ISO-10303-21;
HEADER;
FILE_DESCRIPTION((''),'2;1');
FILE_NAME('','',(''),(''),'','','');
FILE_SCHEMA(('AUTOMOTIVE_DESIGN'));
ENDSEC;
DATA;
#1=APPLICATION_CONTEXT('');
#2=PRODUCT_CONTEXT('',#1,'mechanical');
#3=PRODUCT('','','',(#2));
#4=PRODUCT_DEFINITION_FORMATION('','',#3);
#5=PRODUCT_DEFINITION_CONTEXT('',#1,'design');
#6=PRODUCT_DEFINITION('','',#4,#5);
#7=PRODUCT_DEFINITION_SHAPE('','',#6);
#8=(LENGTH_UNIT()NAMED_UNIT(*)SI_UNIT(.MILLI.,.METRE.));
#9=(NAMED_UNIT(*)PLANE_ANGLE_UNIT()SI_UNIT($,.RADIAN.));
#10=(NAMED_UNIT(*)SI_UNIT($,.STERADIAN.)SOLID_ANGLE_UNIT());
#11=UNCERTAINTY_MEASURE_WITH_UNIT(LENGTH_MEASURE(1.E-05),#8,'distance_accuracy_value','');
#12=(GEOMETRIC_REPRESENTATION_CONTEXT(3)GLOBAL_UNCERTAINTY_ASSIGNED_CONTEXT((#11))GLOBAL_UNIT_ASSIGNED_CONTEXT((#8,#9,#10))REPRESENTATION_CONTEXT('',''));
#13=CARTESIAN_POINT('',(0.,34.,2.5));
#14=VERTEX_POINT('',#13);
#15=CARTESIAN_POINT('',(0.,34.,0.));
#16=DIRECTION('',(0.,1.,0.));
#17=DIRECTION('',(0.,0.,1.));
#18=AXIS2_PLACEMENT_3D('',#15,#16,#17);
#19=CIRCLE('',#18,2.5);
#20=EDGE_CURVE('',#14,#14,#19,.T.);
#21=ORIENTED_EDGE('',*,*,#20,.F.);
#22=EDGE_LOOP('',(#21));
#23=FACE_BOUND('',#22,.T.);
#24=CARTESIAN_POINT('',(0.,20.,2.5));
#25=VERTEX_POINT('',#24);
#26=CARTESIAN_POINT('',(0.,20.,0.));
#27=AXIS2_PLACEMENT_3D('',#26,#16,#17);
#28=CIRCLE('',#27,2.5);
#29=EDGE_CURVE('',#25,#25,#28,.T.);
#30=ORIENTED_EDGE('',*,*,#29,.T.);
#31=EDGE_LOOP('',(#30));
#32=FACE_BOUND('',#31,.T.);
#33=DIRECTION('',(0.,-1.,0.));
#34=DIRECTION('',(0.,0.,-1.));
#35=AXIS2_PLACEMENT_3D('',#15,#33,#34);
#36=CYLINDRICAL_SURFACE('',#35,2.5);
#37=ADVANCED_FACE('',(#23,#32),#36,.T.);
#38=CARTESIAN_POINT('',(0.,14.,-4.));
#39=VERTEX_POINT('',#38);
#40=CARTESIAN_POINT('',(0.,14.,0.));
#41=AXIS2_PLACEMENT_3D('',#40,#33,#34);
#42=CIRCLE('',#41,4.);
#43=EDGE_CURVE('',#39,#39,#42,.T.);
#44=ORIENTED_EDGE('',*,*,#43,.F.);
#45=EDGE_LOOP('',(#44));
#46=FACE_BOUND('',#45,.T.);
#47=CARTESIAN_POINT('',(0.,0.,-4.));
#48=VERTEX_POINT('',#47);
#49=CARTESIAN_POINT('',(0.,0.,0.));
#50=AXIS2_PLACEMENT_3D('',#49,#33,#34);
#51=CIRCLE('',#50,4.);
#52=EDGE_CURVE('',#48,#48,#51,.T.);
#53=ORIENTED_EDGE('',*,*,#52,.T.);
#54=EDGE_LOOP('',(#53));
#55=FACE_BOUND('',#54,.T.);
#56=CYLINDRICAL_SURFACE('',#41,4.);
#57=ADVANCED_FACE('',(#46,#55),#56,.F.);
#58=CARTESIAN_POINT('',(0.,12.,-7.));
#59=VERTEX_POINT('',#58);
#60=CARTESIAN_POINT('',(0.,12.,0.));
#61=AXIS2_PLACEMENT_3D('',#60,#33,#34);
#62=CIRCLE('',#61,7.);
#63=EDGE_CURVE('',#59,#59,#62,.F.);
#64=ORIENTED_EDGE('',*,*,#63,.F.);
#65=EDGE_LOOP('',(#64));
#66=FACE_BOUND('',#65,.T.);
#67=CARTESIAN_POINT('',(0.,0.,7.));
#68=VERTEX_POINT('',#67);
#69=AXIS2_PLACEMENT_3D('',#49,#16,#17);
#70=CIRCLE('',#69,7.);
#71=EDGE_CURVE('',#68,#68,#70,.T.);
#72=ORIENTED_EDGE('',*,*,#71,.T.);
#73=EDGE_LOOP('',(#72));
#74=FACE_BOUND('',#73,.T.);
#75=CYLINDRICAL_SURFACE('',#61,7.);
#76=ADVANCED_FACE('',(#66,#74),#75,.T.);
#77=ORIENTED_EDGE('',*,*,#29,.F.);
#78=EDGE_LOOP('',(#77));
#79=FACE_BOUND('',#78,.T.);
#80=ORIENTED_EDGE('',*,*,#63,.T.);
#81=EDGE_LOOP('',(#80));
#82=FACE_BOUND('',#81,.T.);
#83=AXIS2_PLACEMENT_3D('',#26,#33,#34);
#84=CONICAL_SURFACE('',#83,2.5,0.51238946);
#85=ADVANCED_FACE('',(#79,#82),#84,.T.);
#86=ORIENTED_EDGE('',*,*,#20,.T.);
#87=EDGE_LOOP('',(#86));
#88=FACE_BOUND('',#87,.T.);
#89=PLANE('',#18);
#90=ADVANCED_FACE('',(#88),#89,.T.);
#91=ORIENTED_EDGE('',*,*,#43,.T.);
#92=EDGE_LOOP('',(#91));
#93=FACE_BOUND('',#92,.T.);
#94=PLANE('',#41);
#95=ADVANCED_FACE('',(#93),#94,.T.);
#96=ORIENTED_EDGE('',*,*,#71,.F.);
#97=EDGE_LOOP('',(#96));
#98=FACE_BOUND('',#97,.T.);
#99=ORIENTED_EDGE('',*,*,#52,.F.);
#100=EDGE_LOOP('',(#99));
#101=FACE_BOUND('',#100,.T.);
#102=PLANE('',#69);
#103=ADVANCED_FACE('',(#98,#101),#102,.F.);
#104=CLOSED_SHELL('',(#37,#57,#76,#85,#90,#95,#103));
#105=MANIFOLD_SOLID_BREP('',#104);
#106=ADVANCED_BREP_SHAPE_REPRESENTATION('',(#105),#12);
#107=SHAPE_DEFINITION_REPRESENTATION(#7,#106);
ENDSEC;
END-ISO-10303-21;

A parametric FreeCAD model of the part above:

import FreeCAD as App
import Part
import Sketcher
Q = App.Units.Quantity

doc = App.newDocument("Part")
params = doc.addObject("Spreadsheet::Sheet", "Params")
for row, (alias, value) in enumerate([
    ("sketch1_diameter", "14 mm"),
    ("pad1_length", "12 mm"),
    ("sketch2_diameter", "5 mm"),
    ("sketch3_diameter", "14 mm"),
    ("sketch4_diameter", "5 mm"),
    ("pad2_length", "14 mm"),
    ("sketch5_diameter", "8 mm"),
    ("pocket1_length", "14 mm"),
], start=1):
    params.set(f"A{row}", alias)
    params.set(f"B{row}", "=" + value)
    params.setAlias(f"B{row}", alias)

body = doc.addObject("PartDesign::Body", "Body")

sketch1 = doc.addObject("Sketcher::SketchObject", "Sketch")
body.addObject(sketch1)
sketch1.AttachmentSupport = (doc.XZ_Plane, [""])
sketch1.MapMode = "FlatFace"
sketch1.addGeometry(Part.Circle(App.Vector(0, 0, 0), App.Vector(0, 0, 1), 7), False)
sketch1.addConstraint([
    Sketcher.Constraint("Coincident", 0, 3, -1, 1),
    Sketcher.Constraint("Diameter", 0, Q("14 mm")),
])
sketch1.setExpression("Constraints[1]", "Params.sketch1_diameter")
pad1 = doc.addObject("PartDesign::Pad", "Pad")
body.addObject(pad1)
pad1.Profile = sketch1
pad1.setExpression("Length", "Params.pad1_length")
pad1.Reversed = True

sketch2 = doc.addObject("Sketcher::SketchObject", "Sketch001")
body.addObject(sketch2)
sketch2.AttachmentSupport = (doc.XZ_Plane, [""])
sketch2.MapMode = "FlatFace"
sketch2.AttachmentOffset = App.Placement(App.Vector(0, 0, -20), App.Rotation())
sketch2.addGeometry(Part.Circle(App.Vector(0, 0, 0), App.Vector(0, 0, 1), 2.5), False)
sketch2.addConstraint([
    Sketcher.Constraint("Coincident", 0, 3, -1, 1),
    Sketcher.Constraint("Diameter", 0, Q("5 mm")),
])
sketch2.setExpression("Constraints[1]", "Params.sketch2_diameter")

sketch3 = doc.addObject("Sketcher::SketchObject", "Sketch002")
body.addObject(sketch3)
sketch3.AttachmentSupport = (doc.XZ_Plane, [""])
sketch3.MapMode = "FlatFace"
sketch3.AttachmentOffset = App.Placement(App.Vector(0, 0, -12), App.Rotation())
sketch3.addGeometry(Part.Circle(App.Vector(0, 0, 0), App.Vector(0, 0, 1), 7), False)
sketch3.addConstraint([
    Sketcher.Constraint("Coincident", 0, 3, -1, 1),
    Sketcher.Constraint("Diameter", 0, Q("14 mm")),
])
sketch3.setExpression("Constraints[1]", "Params.sketch3_diameter")

additiveloft = doc.addObject("PartDesign::AdditiveLoft", "AdditiveLoft")
body.addObject(additiveloft)
additiveloft.Profile = sketch2
additiveloft.Sections = [sketch3]

sketch4 = doc.addObject("Sketcher::SketchObject", "Sketch003")
body.addObject(sketch4)
sketch4.AttachmentSupport = (doc.XZ_Plane, [""])
sketch4.MapMode = "FlatFace"
sketch4.AttachmentOffset = App.Placement(App.Vector(0, 0, -20), App.Rotation())
sketch4.addGeometry(Part.Circle(App.Vector(0, 0, 0), App.Vector(0, 0, 1), 2.5), False)
sketch4.addConstraint([
    Sketcher.Constraint("Coincident", 0, 3, -1, 1),
    Sketcher.Constraint("Diameter", 0, Q("5 mm")),
])
sketch4.setExpression("Constraints[1]", "Params.sketch4_diameter")
pad2 = doc.addObject("PartDesign::Pad", "Pad001")
body.addObject(pad2)
pad2.Profile = sketch4
pad2.setExpression("Length", "Params.pad2_length")
pad2.Reversed = True

sketch5 = doc.addObject("Sketcher::SketchObject", "Sketch004")
body.addObject(sketch5)
sketch5.AttachmentSupport = (doc.XZ_Plane, [""])
sketch5.MapMode = "FlatFace"
sketch5.addGeometry(Part.Circle(App.Vector(0, 0, 0), App.Vector(0, 0, 1), 4), False)
sketch5.addConstraint([
    Sketcher.Constraint("Coincident", 0, 3, -1, 1),
    Sketcher.Constraint("Diameter", 0, Q("8 mm")),
])
sketch5.setExpression("Constraints[1]", "Params.sketch5_diameter")
pocket1 = doc.addObject("PartDesign::Pocket", "Pocket")
body.addObject(pocket1)
pocket1.Profile = sketch5
pocket1.setExpression("Length", "Params.pocket1_length")

doc.recompute()
